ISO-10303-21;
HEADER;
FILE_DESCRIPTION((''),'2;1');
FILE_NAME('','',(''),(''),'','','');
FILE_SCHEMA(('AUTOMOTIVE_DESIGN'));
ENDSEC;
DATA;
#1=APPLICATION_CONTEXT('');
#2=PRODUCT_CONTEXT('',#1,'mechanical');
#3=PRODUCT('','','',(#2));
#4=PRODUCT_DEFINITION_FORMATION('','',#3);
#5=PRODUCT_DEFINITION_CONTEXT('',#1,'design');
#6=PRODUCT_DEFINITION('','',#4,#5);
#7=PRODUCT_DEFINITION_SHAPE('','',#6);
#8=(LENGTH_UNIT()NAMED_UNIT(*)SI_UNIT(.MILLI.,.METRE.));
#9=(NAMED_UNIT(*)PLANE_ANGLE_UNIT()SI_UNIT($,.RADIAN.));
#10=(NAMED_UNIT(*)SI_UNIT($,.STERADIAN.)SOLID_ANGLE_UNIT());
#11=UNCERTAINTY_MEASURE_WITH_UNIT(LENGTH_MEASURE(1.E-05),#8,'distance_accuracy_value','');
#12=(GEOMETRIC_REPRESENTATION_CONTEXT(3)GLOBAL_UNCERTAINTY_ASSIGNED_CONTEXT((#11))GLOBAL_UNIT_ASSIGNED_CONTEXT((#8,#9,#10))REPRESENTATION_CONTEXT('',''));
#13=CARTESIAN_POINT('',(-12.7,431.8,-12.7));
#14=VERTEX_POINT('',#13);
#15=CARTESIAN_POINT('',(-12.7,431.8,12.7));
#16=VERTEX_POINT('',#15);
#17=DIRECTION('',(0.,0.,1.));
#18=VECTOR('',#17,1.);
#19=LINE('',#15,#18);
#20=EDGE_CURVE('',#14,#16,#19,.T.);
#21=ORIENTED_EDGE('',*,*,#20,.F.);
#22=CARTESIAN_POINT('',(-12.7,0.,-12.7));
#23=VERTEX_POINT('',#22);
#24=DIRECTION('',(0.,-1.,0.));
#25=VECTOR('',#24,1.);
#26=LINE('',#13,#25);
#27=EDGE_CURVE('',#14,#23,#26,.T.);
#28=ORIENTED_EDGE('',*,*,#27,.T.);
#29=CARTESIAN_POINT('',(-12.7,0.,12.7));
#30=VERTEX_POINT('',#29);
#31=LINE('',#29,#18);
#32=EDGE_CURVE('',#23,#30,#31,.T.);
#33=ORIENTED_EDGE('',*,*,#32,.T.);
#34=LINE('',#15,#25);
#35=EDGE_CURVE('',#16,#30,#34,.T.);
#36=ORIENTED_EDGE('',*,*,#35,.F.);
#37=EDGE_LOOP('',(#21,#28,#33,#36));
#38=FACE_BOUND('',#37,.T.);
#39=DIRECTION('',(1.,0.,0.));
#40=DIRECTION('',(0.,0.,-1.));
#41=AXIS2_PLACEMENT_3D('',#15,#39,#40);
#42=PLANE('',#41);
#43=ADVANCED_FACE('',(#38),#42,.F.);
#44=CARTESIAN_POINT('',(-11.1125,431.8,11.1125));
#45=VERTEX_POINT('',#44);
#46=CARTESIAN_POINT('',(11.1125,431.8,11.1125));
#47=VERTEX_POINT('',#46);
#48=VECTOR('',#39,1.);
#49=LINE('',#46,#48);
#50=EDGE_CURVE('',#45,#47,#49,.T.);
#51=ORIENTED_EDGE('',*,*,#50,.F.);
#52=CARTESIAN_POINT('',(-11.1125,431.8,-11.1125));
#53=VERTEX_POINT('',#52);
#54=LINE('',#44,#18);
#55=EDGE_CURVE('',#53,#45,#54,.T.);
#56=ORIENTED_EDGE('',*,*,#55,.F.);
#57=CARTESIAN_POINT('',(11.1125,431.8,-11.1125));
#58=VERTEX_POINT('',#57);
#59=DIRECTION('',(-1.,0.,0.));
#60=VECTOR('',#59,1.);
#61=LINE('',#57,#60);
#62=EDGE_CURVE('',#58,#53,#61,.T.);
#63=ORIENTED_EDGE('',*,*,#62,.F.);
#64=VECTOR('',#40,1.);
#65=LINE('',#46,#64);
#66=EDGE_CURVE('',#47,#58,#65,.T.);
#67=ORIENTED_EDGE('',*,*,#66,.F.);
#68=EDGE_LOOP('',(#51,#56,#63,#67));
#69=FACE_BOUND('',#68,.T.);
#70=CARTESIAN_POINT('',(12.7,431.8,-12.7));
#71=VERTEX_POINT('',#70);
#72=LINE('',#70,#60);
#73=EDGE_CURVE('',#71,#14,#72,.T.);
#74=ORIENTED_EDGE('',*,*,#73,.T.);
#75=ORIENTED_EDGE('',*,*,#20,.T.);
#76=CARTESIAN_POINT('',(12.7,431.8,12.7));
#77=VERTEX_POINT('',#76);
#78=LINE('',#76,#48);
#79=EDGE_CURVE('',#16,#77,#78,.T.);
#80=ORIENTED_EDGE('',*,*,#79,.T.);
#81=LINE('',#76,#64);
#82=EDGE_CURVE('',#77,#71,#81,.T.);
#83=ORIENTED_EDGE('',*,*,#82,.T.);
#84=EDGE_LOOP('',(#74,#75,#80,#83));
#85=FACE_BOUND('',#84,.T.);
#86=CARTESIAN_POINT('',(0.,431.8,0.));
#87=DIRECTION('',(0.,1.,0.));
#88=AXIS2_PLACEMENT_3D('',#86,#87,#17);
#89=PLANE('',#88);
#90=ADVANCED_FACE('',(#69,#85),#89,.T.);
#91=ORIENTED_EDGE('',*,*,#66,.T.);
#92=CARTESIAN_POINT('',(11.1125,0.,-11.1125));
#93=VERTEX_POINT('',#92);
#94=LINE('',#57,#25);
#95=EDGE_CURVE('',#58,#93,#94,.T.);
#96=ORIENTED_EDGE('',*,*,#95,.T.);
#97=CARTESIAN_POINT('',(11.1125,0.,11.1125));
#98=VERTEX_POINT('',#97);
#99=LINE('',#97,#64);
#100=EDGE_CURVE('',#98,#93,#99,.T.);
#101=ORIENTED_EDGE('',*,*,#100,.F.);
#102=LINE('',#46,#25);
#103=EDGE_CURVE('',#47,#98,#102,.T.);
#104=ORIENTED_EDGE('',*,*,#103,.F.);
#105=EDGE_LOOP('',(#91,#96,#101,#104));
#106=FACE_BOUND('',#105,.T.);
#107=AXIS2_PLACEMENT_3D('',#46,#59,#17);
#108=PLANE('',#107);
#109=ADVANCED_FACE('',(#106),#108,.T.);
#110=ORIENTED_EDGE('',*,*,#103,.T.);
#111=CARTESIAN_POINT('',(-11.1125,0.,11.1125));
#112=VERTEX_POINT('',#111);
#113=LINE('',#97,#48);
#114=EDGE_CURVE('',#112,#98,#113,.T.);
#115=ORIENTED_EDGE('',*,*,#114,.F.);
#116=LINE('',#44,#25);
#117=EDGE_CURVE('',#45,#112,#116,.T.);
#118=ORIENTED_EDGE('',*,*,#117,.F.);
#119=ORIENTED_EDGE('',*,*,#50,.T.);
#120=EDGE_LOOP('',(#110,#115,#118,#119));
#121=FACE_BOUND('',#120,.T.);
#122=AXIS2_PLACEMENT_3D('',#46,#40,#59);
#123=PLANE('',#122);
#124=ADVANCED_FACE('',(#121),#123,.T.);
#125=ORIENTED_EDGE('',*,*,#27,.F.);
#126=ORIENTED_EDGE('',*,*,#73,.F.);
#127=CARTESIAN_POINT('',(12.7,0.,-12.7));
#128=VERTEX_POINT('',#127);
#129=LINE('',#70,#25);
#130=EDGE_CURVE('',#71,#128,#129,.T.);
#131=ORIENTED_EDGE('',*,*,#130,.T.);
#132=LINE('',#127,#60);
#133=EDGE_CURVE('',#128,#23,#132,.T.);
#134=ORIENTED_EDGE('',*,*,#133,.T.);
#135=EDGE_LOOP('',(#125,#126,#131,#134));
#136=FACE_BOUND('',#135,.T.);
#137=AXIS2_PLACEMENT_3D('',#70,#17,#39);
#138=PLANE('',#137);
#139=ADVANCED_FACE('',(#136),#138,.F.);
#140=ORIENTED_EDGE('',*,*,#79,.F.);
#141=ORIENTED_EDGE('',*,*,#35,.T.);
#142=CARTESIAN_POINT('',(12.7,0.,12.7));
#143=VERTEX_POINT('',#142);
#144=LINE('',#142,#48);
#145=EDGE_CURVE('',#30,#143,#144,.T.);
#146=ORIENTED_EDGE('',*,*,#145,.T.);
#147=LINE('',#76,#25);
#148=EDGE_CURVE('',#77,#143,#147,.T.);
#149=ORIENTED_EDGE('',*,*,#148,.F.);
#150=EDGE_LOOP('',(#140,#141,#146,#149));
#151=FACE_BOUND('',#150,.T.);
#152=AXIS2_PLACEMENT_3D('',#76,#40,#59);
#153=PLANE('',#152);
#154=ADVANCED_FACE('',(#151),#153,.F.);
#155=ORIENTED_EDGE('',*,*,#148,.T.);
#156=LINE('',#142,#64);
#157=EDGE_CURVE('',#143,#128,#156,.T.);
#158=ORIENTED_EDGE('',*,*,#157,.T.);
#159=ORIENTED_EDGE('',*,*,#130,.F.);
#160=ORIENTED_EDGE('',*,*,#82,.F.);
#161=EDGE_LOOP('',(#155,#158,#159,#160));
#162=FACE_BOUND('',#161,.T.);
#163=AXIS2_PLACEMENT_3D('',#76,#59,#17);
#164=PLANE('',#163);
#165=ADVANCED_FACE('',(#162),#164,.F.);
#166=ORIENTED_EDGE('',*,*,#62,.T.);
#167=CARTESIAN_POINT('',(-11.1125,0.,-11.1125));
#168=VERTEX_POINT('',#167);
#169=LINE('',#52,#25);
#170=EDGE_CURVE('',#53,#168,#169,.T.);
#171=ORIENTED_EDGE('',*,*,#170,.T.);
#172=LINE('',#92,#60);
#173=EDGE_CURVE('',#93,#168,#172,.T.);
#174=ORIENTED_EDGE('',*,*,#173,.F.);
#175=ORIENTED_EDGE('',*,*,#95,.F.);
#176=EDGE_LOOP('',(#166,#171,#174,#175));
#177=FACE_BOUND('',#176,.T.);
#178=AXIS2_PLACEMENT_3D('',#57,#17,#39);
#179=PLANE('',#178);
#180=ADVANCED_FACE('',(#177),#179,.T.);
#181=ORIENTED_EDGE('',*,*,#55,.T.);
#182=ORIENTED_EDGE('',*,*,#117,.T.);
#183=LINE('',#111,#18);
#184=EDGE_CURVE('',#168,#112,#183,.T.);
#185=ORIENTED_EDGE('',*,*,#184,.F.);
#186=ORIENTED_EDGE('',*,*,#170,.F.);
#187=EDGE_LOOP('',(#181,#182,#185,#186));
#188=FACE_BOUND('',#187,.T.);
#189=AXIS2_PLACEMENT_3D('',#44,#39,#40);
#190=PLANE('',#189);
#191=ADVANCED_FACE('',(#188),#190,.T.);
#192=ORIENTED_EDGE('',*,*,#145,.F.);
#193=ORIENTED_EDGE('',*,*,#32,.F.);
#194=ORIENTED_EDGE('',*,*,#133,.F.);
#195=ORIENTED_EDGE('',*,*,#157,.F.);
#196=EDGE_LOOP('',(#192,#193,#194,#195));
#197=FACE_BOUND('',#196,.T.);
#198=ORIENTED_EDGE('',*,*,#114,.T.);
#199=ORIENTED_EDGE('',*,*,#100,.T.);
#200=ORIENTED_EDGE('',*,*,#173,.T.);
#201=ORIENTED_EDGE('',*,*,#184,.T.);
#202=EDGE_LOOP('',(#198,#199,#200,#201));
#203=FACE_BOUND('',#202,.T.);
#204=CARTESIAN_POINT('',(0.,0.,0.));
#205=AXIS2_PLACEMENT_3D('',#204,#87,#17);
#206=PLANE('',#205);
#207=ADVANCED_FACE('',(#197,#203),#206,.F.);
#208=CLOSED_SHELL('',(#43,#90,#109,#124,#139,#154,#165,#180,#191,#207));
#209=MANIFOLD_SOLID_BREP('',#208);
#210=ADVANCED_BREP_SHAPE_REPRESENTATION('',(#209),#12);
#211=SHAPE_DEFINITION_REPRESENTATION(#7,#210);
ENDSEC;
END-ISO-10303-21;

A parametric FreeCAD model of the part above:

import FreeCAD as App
import Part
import Sketcher
from FreeCAD import Vector
Q = App.Units.Quantity

doc = App.newDocument("Part")
body = doc.addObject("PartDesign::Body", "Body")

sketch1 = body.newObject("Sketcher::SketchObject", "Sketch")
sketch1.AttachmentSupport = (doc.getObject("XZ_Plane"), [""])
sketch1.MapMode = "FlatFace"
sketch1.addGeometry([
    Part.LineSegment(Vector(-13, -13, 0), Vector(-13, 13, 0)),
    Part.LineSegment(Vector(-13, 13, 0), Vector(13, 13, 0)),
    Part.LineSegment(Vector(13, 13, 0), Vector(13, -13, 0)),
    Part.LineSegment(Vector(13, -13, 0), Vector(-13, -13, 0)),
    Part.LineSegment(Vector(11, 11, 0), Vector(-11, 11, 0)),
    Part.LineSegment(Vector(-11, 11, 0), Vector(-11, -11, 0)),
    Part.LineSegment(Vector(-11, -11, 0), Vector(11, -11, 0)),
    Part.LineSegment(Vector(11, -11, 0), Vector(11, 11, 0)),
], False)
sketch1.addConstraint([
    Sketcher.Constraint("Coincident", 0, 2, 1, 1),
    Sketcher.Constraint("Coincident", 1, 2, 2, 1),
    Sketcher.Constraint("Coincident", 2, 2, 3, 1),
    Sketcher.Constraint("Coincident", 3, 2, 0, 1),
    Sketcher.Constraint("Coincident", 4, 2, 5, 1),
    Sketcher.Constraint("Coincident", 5, 2, 6, 1),
    Sketcher.Constraint("Coincident", 6, 2, 7, 1),
    Sketcher.Constraint("Coincident", 7, 2, 4, 1),
    Sketcher.Constraint("Vertical", 0),
    Sketcher.Constraint("Horizontal", 1),
    Sketcher.Constraint("Vertical", 2),
    Sketcher.Constraint("Horizontal", 3),
    Sketcher.Constraint("Horizontal", 4),
    Sketcher.Constraint("Vertical", 5),
    Sketcher.Constraint("Horizontal", 6),
    Sketcher.Constraint("Vertical", 7),
    Sketcher.Constraint("Symmetric", 0, 2, 2, 2, -1, 1),
    Sketcher.Constraint("Symmetric", 4, 2, 6, 2, -1, 1),
    Sketcher.Constraint("Equal", 3, 0),
    Sketcher.Constraint("Equal", 6, 5),
    Sketcher.Constraint("DistanceX", 1, 1, 1, 2, Q("1 in")),
    Sketcher.Constraint("DistanceX", 4, 2, 4, 1, Q("0.875 in")),
])
pad1 = body.newObject("PartDesign::Pad", "Pad")
pad1.Profile = sketch1
pad1.Length = Q("17 in")
pad1.Reversed = True

doc.recompute()
